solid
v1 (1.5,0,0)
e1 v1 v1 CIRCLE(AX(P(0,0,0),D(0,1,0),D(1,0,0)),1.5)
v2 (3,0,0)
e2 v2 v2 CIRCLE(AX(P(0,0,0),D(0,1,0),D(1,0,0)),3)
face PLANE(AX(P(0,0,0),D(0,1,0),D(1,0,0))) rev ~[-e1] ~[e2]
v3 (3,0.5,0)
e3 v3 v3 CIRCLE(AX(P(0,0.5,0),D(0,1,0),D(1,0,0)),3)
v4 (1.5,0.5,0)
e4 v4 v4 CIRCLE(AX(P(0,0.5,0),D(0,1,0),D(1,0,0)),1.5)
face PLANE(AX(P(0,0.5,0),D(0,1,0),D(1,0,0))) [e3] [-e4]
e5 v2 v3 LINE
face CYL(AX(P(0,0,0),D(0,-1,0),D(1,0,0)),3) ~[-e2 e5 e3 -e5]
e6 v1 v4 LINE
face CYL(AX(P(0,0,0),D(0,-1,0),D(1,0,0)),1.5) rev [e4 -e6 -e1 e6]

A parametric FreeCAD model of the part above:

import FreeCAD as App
import Part
import Sketcher
from FreeCAD import Vector

doc = App.newDocument("Part")
body = doc.addObject("PartDesign::Body", "Body")

sketch1 = body.newObject("Sketcher::SketchObject", "Sketch")
sketch1.AttachmentSupport = (doc.getObject("XZ_Plane"), [""])
sketch1.MapMode = "FlatFace"
sketch1.addGeometry([
    Part.Circle(Vector(0, 0, 0), Vector(0, 0, 1), 3),
    Part.Circle(Vector(0, 0, 0), Vector(0, 0, 1), 1.5),
], False)
sketch1.addConstraint([
    Sketcher.Constraint("Coincident", 0, 3, -1, 1),
    Sketcher.Constraint("Coincident", 1, 3, -1, 1),
    Sketcher.Constraint("Diameter", 0, 6.0),
    Sketcher.Constraint("Diameter", 1, 3.0),
])
pad1 = body.newObject("PartDesign::Pad", "Pad")
pad1.Profile = sketch1
pad1.Length = 0.5
pad1.Reversed = True

doc.recompute()
